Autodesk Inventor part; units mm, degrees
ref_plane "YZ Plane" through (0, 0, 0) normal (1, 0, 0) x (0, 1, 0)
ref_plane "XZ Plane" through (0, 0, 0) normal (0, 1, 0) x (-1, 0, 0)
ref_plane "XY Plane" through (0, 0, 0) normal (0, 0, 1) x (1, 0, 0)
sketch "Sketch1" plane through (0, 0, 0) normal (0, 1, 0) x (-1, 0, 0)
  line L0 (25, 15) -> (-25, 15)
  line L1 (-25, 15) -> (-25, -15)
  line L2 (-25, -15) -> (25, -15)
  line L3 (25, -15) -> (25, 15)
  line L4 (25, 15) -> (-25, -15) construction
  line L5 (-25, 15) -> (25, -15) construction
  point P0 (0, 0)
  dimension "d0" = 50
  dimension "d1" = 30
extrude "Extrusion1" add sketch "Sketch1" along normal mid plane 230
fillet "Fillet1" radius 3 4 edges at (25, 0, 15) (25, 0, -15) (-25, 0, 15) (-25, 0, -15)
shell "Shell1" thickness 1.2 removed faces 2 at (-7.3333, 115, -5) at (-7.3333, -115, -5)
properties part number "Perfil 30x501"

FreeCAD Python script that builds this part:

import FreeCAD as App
import Part
import Sketcher


def edges_at(feature, points):
    """Names of the edges that pass closest to the given points."""
    edges = feature.Shape.Edges
    near = lambda p: min(range(len(edges)), key=lambda i: edges[i].distToShape(Part.Vertex(*p))[0])
    return sorted({f"Edge{near(p) + 1}" for p in points})


def faces_at(feature, points):
    """Names of the faces that lie closest to the given points."""
    faces = feature.Shape.Faces
    near = lambda p: min(range(len(faces)), key=lambda i: faces[i].distToShape(Part.Vertex(*p))[0])
    return sorted({f"Face{near(p) + 1}" for p in points})

doc = App.newDocument("Part")
body = doc.addObject("PartDesign::Body", "Body")

# Sketch on XZ plane
sketch1 = doc.addObject("Sketcher::SketchObject", "Sketch")
body.addObject(sketch1)
sketch1.AttachmentSupport = (doc.XZ_Plane, [""])
sketch1.MapMode = "FlatFace"
sketch1.addGeometry(Part.LineSegment(App.Vector(-25, -15, 0), App.Vector(-25, 15, 0)), False)
sketch1.addGeometry(Part.LineSegment(App.Vector(-25, 15, 0), App.Vector(25, 15, 0)), False)
sketch1.addGeometry(Part.LineSegment(App.Vector(25, 15, 0), App.Vector(25, -15, 0)), False)
sketch1.addGeometry(Part.LineSegment(App.Vector(25, -15, 0), App.Vector(-25, -15, 0)), False)
sketch1.addConstraint(Sketcher.Constraint("Coincident", 0, 2, 1, 1))
sketch1.addConstraint(Sketcher.Constraint("Coincident", 1, 2, 2, 1))
sketch1.addConstraint(Sketcher.Constraint("Coincident", 2, 2, 3, 1))
sketch1.addConstraint(Sketcher.Constraint("Coincident", 3, 2, 0, 1))
sketch1.addConstraint(Sketcher.Constraint("Vertical", 0))
sketch1.addConstraint(Sketcher.Constraint("Horizontal", 1))
sketch1.addConstraint(Sketcher.Constraint("Vertical", 2))
sketch1.addConstraint(Sketcher.Constraint("Horizontal", 3))
sketch1.addConstraint(Sketcher.Constraint("Symmetric", 0, 2, 2, 2, -1, 1))
sketch1.addConstraint(Sketcher.Constraint("DistanceX", 1, 1, 1, 2, 50.0))
sketch1.addConstraint(Sketcher.Constraint("DistanceY", 0, 1, 0, 2, 30.0))
pad1 = doc.addObject("PartDesign::Pad", "Pad")
body.addObject(pad1)
pad1.Profile = sketch1
pad1.Length = 230
pad1.Midplane = True
doc.recompute()

fillet = doc.addObject("PartDesign::Fillet", "Fillet")
body.addObject(fillet)
fillet.Base = (pad1, edges_at(pad1, [
    (25, 0, 15),
    (25, 0, -15),
    (-25, 0, 15),
    (-25, 0, -15),
]))
fillet.Radius = 3
doc.recompute()

thickness = doc.addObject("PartDesign::Thickness", "Thickness")
body.addObject(thickness)
thickness.Base = (fillet, faces_at(fillet, [(-7.333, 115, -5), (-7.333, -115, -5)]))
thickness.Value = 1.2
thickness.Reversed = True
thickness.Join = "Intersection"

doc.recompute()
